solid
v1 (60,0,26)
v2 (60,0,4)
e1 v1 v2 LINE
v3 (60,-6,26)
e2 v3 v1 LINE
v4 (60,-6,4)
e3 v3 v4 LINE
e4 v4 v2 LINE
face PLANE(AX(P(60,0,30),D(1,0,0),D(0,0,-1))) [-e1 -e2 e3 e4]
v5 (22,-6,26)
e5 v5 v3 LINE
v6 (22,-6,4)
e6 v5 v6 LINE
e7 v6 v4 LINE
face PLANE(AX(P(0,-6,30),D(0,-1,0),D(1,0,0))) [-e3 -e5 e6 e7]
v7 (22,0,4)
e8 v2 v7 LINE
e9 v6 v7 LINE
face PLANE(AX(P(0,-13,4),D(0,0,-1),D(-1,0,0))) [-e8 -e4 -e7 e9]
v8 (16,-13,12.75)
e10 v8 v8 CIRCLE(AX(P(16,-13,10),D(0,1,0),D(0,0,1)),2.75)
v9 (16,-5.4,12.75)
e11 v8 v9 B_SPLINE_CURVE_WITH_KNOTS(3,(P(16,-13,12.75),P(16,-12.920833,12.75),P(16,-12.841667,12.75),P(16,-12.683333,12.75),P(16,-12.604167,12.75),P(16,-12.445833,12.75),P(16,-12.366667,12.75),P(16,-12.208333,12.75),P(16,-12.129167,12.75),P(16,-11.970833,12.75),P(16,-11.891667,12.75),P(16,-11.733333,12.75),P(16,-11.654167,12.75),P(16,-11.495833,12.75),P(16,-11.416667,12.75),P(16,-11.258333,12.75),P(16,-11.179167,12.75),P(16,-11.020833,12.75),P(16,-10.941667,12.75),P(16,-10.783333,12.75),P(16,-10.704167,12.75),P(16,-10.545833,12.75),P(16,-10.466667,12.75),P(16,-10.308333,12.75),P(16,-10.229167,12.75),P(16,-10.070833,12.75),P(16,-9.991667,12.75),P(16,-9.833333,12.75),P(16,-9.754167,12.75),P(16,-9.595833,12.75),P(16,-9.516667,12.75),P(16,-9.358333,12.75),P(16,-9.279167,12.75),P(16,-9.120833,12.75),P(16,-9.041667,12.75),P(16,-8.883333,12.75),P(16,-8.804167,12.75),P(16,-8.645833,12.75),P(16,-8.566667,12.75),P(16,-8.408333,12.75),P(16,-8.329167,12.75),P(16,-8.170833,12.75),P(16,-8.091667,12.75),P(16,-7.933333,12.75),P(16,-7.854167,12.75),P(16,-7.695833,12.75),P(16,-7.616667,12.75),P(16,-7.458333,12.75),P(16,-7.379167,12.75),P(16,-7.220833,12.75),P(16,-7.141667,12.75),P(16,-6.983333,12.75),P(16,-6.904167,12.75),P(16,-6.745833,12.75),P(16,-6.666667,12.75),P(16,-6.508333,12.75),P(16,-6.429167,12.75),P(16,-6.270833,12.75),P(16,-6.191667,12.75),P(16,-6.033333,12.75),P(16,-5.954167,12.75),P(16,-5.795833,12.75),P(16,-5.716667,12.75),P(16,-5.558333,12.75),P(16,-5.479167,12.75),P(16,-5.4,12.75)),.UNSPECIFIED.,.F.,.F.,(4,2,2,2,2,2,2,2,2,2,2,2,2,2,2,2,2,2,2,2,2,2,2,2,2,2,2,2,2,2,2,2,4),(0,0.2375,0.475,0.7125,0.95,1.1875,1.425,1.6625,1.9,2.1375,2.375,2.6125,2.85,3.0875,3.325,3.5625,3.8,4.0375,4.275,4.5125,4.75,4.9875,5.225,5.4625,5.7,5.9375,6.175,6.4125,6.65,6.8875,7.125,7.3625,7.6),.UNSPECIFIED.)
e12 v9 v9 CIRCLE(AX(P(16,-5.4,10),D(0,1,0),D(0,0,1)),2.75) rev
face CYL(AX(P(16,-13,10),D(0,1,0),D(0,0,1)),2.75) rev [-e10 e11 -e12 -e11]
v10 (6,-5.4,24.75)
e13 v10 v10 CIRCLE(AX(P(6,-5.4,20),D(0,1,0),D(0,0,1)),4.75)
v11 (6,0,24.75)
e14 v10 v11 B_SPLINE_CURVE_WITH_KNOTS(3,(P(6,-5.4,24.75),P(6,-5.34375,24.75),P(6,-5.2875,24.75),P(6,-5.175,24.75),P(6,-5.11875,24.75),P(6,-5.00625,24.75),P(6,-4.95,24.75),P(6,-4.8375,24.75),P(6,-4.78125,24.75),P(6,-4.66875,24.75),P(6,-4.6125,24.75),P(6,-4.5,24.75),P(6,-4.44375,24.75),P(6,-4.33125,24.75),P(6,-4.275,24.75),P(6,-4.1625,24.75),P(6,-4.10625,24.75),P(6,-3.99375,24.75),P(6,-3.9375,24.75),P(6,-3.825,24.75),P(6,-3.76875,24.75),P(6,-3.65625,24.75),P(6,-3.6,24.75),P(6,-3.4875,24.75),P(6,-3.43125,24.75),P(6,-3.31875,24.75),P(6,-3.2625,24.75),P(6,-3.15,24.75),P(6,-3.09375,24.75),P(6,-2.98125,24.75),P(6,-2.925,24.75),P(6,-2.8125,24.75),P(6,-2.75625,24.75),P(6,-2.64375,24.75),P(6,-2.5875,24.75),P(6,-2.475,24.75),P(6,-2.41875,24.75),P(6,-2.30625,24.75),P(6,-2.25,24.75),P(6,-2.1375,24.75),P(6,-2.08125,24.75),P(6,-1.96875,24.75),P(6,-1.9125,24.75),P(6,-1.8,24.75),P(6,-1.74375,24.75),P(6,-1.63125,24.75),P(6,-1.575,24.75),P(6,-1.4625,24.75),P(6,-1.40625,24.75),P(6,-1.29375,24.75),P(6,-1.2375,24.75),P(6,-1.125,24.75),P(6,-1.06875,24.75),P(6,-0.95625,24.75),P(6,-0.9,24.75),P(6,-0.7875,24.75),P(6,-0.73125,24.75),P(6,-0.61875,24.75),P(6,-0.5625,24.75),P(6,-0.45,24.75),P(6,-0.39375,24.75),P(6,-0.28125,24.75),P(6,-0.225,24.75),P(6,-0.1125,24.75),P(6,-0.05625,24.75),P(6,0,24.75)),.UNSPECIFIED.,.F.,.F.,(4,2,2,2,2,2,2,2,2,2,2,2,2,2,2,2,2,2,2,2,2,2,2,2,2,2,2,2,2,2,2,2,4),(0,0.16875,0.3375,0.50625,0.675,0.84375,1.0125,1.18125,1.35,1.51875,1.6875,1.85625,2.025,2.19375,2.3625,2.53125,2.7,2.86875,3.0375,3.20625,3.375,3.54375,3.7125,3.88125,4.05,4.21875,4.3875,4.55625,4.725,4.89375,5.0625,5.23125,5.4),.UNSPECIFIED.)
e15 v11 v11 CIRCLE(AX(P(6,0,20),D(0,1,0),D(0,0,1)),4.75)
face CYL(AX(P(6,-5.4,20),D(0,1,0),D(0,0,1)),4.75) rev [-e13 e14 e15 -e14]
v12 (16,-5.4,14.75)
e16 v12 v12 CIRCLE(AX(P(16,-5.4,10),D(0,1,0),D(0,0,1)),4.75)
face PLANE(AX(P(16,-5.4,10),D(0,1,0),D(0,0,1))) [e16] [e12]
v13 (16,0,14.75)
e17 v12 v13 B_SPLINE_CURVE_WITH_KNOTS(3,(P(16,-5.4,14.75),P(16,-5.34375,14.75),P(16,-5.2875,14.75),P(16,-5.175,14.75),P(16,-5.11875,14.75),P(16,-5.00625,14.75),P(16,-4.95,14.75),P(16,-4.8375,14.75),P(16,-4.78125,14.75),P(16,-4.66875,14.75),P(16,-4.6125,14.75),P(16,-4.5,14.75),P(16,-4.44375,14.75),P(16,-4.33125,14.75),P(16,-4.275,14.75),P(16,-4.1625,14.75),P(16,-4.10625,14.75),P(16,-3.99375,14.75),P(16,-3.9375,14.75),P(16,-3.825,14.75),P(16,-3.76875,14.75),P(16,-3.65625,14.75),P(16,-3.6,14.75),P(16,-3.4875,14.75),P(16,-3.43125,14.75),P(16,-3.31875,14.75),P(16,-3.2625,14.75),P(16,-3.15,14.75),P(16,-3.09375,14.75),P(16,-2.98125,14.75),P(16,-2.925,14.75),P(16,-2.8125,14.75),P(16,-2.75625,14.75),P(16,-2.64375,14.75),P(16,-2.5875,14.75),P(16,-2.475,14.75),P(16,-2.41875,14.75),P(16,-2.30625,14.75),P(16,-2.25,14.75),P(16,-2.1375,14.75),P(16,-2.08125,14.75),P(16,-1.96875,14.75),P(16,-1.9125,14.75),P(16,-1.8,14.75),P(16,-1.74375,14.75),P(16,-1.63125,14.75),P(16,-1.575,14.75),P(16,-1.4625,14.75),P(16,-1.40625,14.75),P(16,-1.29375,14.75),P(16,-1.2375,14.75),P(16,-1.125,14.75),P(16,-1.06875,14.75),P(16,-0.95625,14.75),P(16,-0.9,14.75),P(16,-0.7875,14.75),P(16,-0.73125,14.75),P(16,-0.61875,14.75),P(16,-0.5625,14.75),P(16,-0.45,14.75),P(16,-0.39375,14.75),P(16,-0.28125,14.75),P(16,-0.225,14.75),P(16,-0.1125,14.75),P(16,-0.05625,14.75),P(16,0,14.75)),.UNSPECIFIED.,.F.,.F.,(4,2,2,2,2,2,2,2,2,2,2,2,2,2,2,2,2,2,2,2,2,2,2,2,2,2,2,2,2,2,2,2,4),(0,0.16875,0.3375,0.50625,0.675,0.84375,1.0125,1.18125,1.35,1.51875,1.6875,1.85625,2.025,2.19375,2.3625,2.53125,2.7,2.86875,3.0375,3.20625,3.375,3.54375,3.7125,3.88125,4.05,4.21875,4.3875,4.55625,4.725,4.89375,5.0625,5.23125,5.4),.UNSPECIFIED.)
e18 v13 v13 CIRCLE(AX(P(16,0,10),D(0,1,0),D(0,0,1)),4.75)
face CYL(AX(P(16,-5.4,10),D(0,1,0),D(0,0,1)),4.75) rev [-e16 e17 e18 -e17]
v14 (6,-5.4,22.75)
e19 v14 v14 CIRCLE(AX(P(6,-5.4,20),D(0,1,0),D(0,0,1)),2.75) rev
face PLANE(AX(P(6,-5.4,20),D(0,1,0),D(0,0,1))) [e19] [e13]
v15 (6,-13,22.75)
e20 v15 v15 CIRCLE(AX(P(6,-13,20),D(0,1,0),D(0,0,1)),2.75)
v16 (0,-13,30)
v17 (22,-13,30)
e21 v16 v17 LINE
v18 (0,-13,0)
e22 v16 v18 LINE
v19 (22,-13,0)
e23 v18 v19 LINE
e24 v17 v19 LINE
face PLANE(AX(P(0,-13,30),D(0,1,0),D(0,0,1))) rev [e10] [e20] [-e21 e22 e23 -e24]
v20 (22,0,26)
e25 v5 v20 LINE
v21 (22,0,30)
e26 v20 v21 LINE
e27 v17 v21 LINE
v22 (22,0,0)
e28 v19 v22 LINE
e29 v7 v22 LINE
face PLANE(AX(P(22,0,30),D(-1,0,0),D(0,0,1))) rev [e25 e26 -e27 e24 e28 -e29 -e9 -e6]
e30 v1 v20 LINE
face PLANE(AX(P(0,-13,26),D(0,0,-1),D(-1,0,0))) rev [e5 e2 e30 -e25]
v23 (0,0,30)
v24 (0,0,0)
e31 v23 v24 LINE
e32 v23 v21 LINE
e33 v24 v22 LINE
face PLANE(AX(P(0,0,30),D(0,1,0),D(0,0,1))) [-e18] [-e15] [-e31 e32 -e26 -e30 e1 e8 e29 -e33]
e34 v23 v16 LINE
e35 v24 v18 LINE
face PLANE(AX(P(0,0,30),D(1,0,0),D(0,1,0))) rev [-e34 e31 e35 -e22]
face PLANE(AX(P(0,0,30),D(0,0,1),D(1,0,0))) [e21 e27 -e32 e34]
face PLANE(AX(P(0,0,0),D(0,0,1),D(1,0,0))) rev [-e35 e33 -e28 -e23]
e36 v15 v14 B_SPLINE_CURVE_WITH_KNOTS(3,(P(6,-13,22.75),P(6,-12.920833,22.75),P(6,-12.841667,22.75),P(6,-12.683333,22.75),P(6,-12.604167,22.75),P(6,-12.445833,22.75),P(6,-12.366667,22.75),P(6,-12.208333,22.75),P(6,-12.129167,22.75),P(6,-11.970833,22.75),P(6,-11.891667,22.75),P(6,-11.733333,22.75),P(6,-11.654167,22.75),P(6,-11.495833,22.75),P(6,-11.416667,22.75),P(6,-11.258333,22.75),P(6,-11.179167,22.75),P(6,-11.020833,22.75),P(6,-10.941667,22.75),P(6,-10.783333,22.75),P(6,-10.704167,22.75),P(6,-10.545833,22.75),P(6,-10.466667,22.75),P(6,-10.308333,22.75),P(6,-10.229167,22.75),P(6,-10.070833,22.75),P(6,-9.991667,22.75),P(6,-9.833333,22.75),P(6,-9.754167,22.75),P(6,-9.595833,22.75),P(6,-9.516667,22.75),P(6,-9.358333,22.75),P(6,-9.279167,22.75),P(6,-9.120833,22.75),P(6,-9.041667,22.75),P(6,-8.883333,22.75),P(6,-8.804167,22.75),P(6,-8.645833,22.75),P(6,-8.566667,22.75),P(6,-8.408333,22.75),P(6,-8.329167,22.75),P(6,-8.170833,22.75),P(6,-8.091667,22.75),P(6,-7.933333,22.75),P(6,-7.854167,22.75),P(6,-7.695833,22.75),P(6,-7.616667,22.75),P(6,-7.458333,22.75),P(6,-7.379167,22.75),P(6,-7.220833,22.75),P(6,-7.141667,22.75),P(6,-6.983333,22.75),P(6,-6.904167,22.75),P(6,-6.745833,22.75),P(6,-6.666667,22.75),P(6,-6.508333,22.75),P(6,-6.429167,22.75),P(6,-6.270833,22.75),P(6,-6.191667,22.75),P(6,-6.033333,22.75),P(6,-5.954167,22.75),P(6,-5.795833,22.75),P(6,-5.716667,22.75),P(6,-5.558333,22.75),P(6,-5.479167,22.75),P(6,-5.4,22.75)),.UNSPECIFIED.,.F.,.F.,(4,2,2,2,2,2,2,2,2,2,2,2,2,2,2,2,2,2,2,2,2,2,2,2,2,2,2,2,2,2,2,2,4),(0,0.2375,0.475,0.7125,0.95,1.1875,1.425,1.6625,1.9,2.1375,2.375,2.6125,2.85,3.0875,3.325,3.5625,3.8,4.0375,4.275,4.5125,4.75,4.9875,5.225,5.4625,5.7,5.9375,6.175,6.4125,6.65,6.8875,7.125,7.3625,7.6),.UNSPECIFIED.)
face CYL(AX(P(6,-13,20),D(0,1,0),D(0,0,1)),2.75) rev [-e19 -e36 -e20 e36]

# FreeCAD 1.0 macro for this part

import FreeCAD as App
import Part
import Sketcher
from FreeCAD import Vector


def add_polygon(sketch, points):
    """Adds a closed chain of lines whose ends are joined by coincident constraints."""
    first, n = sketch.GeometryCount, len(points)
    for a, b in zip(points, points[1:] + points[:1]):
        sketch.addGeometry(Part.LineSegment(App.Vector(*a, 0), App.Vector(*b, 0)), False)
    for i in range(n):
        sketch.addConstraint(Sketcher.Constraint("Coincident", first + i, 2, first + (i + 1) % n, 1))

doc = App.newDocument("Part")
params = doc.addObject("Spreadsheet::Sheet", "Params")
for row, (alias, value) in enumerate([
    ("sketch1_width", "22 mm"),
    ("sketch1_width2", "38 mm"),
    ("sketch1_height", "13 mm"),
    ("sketch1_height2", "7 mm"),
    ("pad1_length", "30 mm"),
    ("sketch2_width", "38 mm"),
    ("sketch2_height", "4 mm"),
    ("sketch3_diameter", "5.5 mm"),
    ("sketch4_diameter", "9.5 mm"),
    ("pocket3_length", "5.4 mm"),
], start=1):
    params.set(f"A{row}", alias)
    params.set(f"B{row}", "=" + value)
    params.setAlias(f"B{row}", alias)

body = doc.addObject("PartDesign::Body", "Body")

# Sketch on XY plane
sketch1 = body.newObject("Sketcher::SketchObject", "Sketch")
sketch1.AttachmentSupport = (doc.getObject("XY_Plane"), [""])
sketch1.MapMode = "FlatFace"
add_polygon(sketch1, [(0, 0), (0, -13), (22, -13), (22, -6), (60, -6), (60, 0)])  # lines 0-5
sketch1.addConstraint([
    Sketcher.Constraint("Vertical", 0),
    Sketcher.Constraint("Horizontal", 1),
    Sketcher.Constraint("Vertical", 2),
    Sketcher.Constraint("Horizontal", 3),
    Sketcher.Constraint("Vertical", 4),
    Sketcher.Constraint("Horizontal", 5),
    Sketcher.Constraint("Coincident", 5, 2, -1, 1),
    Sketcher.Constraint("DistanceX", 1, 1, 1, 2, 22.0),
    Sketcher.Constraint("DistanceX", 3, 1, 3, 2, 38.0),
    Sketcher.Constraint("DistanceY", 0, 2, 0, 1, 13.0),
    Sketcher.Constraint("DistanceY", 2, 1, 2, 2, 7.0),
])
sketch1.setExpression("Constraints[13]", "Params.sketch1_width")
sketch1.setExpression("Constraints[14]", "Params.sketch1_width2")
sketch1.setExpression("Constraints[15]", "Params.sketch1_height")
sketch1.setExpression("Constraints[16]", "Params.sketch1_height2")
pad1 = body.newObject("PartDesign::Pad", "Pad")
pad1.Profile = sketch1
pad1.setExpression("Length", "Params.pad1_length")

# Sketch on XZ plane
sketch2 = body.newObject("Sketcher::SketchObject", "Sketch001")
sketch2.AttachmentSupport = (doc.getObject("XZ_Plane"), [""])
sketch2.MapMode = "FlatFace"
add_polygon(sketch2, [(22, 0), (22, 4), (60, 4), (60, 0)])  # lines 0-3
add_polygon(sketch2, [(22, 26), (22, 30), (60, 30), (60, 26)])  # lines 4-7
sketch2.addConstraint([
    Sketcher.Constraint("Vertical", 0),
    Sketcher.Constraint("Horizontal", 1),
    Sketcher.Constraint("Vertical", 2),
    Sketcher.Constraint("Horizontal", 3),
    Sketcher.Constraint("Vertical", 4),
    Sketcher.Constraint("Horizontal", 5),
    Sketcher.Constraint("Vertical", 6),
    Sketcher.Constraint("Horizontal", 7),
    Sketcher.Constraint("PointOnObject", 2, 2, -1),
    Sketcher.Constraint("Vertical", 3, 2, 4, 2),
    Sketcher.Constraint("Vertical", 2, 2, 5, 2),
    Sketcher.Constraint("Equal", 2, 4),
    Sketcher.Constraint("DistanceX", 1, 1, 1, 2, 38.0),
    Sketcher.Constraint("DistanceY", 0, 1, 0, 2, 4.0),
    Sketcher.Constraint("DistanceX", -1, 1, 0, 2, 22.0),
    Sketcher.Constraint("DistanceY", -1, 1, 4, 2, 30.0),
])
sketch2.setExpression("Constraints[20]", "Params.sketch2_width")
sketch2.setExpression("Constraints[21]", "Params.sketch2_height")
pocket1 = body.newObject("PartDesign::Pocket", "Pocket")
pocket1.Profile = sketch2
pocket1.Type = "ThroughAll"
pocket1.Midplane = True

# Sketch on XZ plane
sketch3 = body.newObject("Sketcher::SketchObject", "Sketch002")
sketch3.AttachmentSupport = (doc.getObject("XZ_Plane"), [""])
sketch3.MapMode = "FlatFace"
sketch3.addGeometry([
    Part.Circle(Vector(6, 20, 0), Vector(0, 0, 1), 2.8),
    Part.Circle(Vector(16, 10, 0), Vector(0, 0, 1), 2.8),
], False)
sketch3.addConstraint([
    Sketcher.Constraint("Equal", 0, 1),
    Sketcher.Constraint("Diameter", 0, 5.5),
    Sketcher.Constraint("DistanceX", -1, 1, 0, 3, 6.0),
    Sketcher.Constraint("DistanceY", -1, 1, 0, 3, 20.0),
    Sketcher.Constraint("DistanceX", -1, 1, 1, 3, 16.0),
    Sketcher.Constraint("DistanceY", -1, 1, 1, 3, 10.0),
])
sketch3.setExpression("Constraints[1]", "Params.sketch3_diameter")
pocket2 = body.newObject("PartDesign::Pocket", "Pocket001")
pocket2.Profile = sketch3
pocket2.Type = "ThroughAll"
pocket2.Midplane = True

# Sketch on XZ plane
sketch4 = body.newObject("Sketcher::SketchObject", "Sketch003")
sketch4.AttachmentSupport = (doc.getObject("XZ_Plane"), [""])
sketch4.MapMode = "FlatFace"
sketch4.addGeometry([
    Part.Circle(Vector(6, 20, 0), Vector(0, 0, 1), 4.8),
    Part.Circle(Vector(16, 10, 0), Vector(0, 0, 1), 4.8),
], False)
sketch4.addConstraint([
    Sketcher.Constraint("Equal", 0, 1),
    Sketcher.Constraint("Diameter", 0, 9.5),
    Sketcher.Constraint("DistanceX", -1, 1, 0, 3, 6.0),
    Sketcher.Constraint("DistanceY", -1, 1, 0, 3, 20.0),
    Sketcher.Constraint("DistanceX", -1, 1, 1, 3, 16.0),
    Sketcher.Constraint("DistanceY", -1, 1, 1, 3, 10.0),
])
sketch4.setExpression("Constraints[1]", "Params.sketch4_diameter")
pocket3 = body.newObject("PartDesign::Pocket", "Pocket002")
pocket3.Profile = sketch4
pocket3.setExpression("Length", "Params.pocket3_length")
pocket3.Reversed = True

doc.recompute()
